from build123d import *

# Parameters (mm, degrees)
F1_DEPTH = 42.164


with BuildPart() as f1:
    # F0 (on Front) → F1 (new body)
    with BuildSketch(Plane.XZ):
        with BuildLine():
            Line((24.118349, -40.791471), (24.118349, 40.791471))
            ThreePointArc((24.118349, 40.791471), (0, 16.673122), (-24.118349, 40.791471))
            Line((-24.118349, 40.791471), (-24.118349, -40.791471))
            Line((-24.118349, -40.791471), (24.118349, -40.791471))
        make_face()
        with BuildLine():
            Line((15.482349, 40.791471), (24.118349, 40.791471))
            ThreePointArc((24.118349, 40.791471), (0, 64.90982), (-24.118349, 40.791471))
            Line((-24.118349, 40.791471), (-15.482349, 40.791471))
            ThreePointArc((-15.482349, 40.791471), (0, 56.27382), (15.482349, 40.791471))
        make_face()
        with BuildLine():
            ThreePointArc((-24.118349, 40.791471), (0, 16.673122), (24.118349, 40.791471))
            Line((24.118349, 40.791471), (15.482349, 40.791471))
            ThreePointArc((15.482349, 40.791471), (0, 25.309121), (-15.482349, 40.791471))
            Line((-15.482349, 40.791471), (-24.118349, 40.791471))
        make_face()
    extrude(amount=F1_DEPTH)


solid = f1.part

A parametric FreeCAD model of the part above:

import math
import FreeCAD as App
import Part
import Sketcher

V = App.Vector
Q = App.Units.Quantity

doc = App.newDocument("Part")
body = doc.addObject("PartDesign::Body", "Body")

# Sketch on XZ plane
sketch1 = doc.addObject("Sketcher::SketchObject", "Sketch")
body.addObject(sketch1)
sketch1.AttachmentSupport = (doc.XZ_Plane, [""])
sketch1.MapMode = "FlatFace"
sketch1.addGeometry([
    Part.LineSegment(V(24, -41, 0), V(24, 41, 0)),  # 0
    Part.ArcOfCircle(Part.Circle(V(0, 41, 0), V(0, 0, 1), 24), math.radians(0), math.radians(180)),  # 1
    Part.LineSegment(V(-24, 41, 0), V(-24, -41, 0)),  # 2
    Part.LineSegment(V(-24, -41, 0), V(24, -41, 0)),  # 3
    Part.ArcOfCircle(Part.Circle(V(0, 41, 0), V(0, 0, 1), 15), math.radians(180), math.radians(360)),  # 4
    Part.ArcOfCircle(Part.Circle(V(0, 41, 0), V(0, 0, 1), 15), math.radians(0), math.radians(180)),  # 5
], False)
sketch1.addConstraint([
    Sketcher.Constraint("Tangent", 0, 2, 1, 1),
    Sketcher.Constraint("Tangent", 1, 2, 2, 1),
    Sketcher.Constraint("Coincident", 2, 2, 3, 1),
    Sketcher.Constraint("Coincident", 3, 2, 0, 1),
    Sketcher.Constraint("Tangent", 4, 1, 5, 2),
    Sketcher.Constraint("Coincident", 5, 1, 4, 2),
    Sketcher.Constraint("Vertical", 0),
    Sketcher.Constraint("Vertical", 2),
    Sketcher.Constraint("Horizontal", 3),
    Sketcher.Constraint("Coincident", 4, 3, 1, 3),
    Sketcher.Constraint("Symmetric", 0, 2, 2, 2, -1, 1),
    Sketcher.Constraint("Horizontal", 1, 2, 4, 1),
    Sketcher.Constraint("Horizontal", 4, 1, 5, 1),
    Sketcher.Constraint("DistanceX", 1, 2, 4, 1, Q("0.34 in")),
    Sketcher.Constraint("Radius", 1, 24.118349),
    Sketcher.Constraint("DistanceY", 0, 1, 0, 2, 81.582942),
])
pad1 = doc.addObject("PartDesign::Pad", "Pad")
body.addObject(pad1)
pad1.Profile = sketch1
pad1.Length = Q("1.66 in")

doc.recompute()
